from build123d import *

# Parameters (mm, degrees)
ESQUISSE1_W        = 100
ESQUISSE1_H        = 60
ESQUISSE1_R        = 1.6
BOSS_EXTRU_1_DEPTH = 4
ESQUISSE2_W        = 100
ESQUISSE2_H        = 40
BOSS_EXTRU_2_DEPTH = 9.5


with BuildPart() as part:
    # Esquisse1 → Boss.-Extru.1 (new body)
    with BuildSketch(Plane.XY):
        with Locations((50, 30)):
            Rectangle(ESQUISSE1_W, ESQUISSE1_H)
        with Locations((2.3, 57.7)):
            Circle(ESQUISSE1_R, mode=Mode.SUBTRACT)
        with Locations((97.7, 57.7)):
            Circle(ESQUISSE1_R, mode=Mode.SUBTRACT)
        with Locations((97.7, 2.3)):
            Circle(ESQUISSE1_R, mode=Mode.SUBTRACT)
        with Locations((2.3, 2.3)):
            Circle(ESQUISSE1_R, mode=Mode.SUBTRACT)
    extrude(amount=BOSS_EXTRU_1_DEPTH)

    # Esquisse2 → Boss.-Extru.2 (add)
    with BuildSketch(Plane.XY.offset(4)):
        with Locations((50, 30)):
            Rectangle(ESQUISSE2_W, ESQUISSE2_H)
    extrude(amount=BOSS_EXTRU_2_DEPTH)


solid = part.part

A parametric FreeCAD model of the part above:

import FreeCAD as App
import Part
import Sketcher
from FreeCAD import Vector

doc = App.newDocument("Part")
body = doc.addObject("PartDesign::Body", "Body")

# Sketch on XY plane
sketch1 = doc.addObject("Sketcher::SketchObject", "Sketch")
body.addObject(sketch1)
sketch1.AttachmentSupport = (doc.XY_Plane, [""])
sketch1.MapMode = "FlatFace"
sketch1.addGeometry([
    Part.LineSegment(Vector(0, 60, 0), Vector(0, 0, 0)),  # 0
    Part.LineSegment(Vector(0, 0, 0), Vector(100, 0, 0)),  # 1
    Part.LineSegment(Vector(100, 0, 0), Vector(100, 60, 0)),  # 2
    Part.LineSegment(Vector(100, 60, 0), Vector(0, 60, 0)),  # 3
    Part.Circle(Vector(2.3, 2.3, 0), Vector(0, 0, 1), 1.6),  # 4
    Part.Circle(Vector(97.7, 2.3, 0), Vector(0, 0, 1), 1.6),  # 5
    Part.Circle(Vector(2.3, 57.7, 0), Vector(0, 0, 1), 1.6),  # 6
    Part.Circle(Vector(97.7, 57.7, 0), Vector(0, 0, 1), 1.6),  # 7
], False)
sketch1.addConstraint([
    Sketcher.Constraint("Coincident", 0, 2, 1, 1),
    Sketcher.Constraint("Coincident", 1, 2, 2, 1),
    Sketcher.Constraint("Coincident", 2, 2, 3, 1),
    Sketcher.Constraint("Coincident", 3, 2, 0, 1),
    Sketcher.Constraint("Vertical", 0),
    Sketcher.Constraint("Horizontal", 1),
    Sketcher.Constraint("Vertical", 2),
    Sketcher.Constraint("Horizontal", 3),
    Sketcher.Constraint("Coincident", 0, 2, -1, 1),
    Sketcher.Constraint("Equal", 4, 5),
    Sketcher.Constraint("Equal", 5, 6),
    Sketcher.Constraint("Equal", 6, 7),
    Sketcher.Constraint("Horizontal", 4, 3, 5, 3),
    Sketcher.Constraint("Horizontal", 6, 3, 7, 3),
    Sketcher.Constraint("Vertical", 4, 3, 6, 3),
    Sketcher.Constraint("Vertical", 5, 3, 7, 3),
    Sketcher.Constraint("Diameter", 4, 3.2),
    Sketcher.Constraint("DistanceX", 1, 1, 1, 2, 100.0),
    Sketcher.Constraint("DistanceY", 0, 2, 0, 1, 60.0),
    Sketcher.Constraint("DistanceX", -1, 1, 4, 3, 2.3),
    Sketcher.Constraint("DistanceY", -1, 1, 4, 3, 2.3),
    Sketcher.Constraint("DistanceX", -1, 1, 5, 3, 97.7),
    Sketcher.Constraint("DistanceY", -1, 1, 6, 3, 57.7),
])
pad1 = doc.addObject("PartDesign::Pad", "Pad")
body.addObject(pad1)
pad1.Profile = sketch1
pad1.Length = 4

# Sketch on XY plane
sketch2 = doc.addObject("Sketcher::SketchObject", "Sketch001")
body.addObject(sketch2)
sketch2.AttachmentSupport = (doc.XY_Plane, [""])
sketch2.MapMode = "FlatFace"
sketch2.AttachmentOffset = App.Placement(Vector(0, 0, 4), App.Rotation())
sketch2.addGeometry([
    Part.LineSegment(Vector(0, 50, 0), Vector(0, 10, 0)),
    Part.LineSegment(Vector(0, 10, 0), Vector(100, 10, 0)),
    Part.LineSegment(Vector(100, 10, 0), Vector(100, 50, 0)),
    Part.LineSegment(Vector(100, 50, 0), Vector(0, 50, 0)),
], False)
sketch2.addConstraint([
    Sketcher.Constraint("Coincident", 0, 2, 1, 1),
    Sketcher.Constraint("Coincident", 1, 2, 2, 1),
    Sketcher.Constraint("Coincident", 2, 2, 3, 1),
    Sketcher.Constraint("Coincident", 3, 2, 0, 1),
    Sketcher.Constraint("Vertical", 0),
    Sketcher.Constraint("Horizontal", 1),
    Sketcher.Constraint("Vertical", 2),
    Sketcher.Constraint("Horizontal", 3),
    Sketcher.Constraint("PointOnObject", 0, 2, -2),
    Sketcher.Constraint("DistanceX", 1, 1, 1, 2, 100.0),
    Sketcher.Constraint("DistanceY", 0, 2, 0, 1, 40.0),
    Sketcher.Constraint("DistanceY", -1, 1, 0, 2, 10.0),
])
pad2 = doc.addObject("PartDesign::Pad", "Pad001")
body.addObject(pad2)
pad2.Profile = sketch2
pad2.Length = 9.5

doc.recompute()
